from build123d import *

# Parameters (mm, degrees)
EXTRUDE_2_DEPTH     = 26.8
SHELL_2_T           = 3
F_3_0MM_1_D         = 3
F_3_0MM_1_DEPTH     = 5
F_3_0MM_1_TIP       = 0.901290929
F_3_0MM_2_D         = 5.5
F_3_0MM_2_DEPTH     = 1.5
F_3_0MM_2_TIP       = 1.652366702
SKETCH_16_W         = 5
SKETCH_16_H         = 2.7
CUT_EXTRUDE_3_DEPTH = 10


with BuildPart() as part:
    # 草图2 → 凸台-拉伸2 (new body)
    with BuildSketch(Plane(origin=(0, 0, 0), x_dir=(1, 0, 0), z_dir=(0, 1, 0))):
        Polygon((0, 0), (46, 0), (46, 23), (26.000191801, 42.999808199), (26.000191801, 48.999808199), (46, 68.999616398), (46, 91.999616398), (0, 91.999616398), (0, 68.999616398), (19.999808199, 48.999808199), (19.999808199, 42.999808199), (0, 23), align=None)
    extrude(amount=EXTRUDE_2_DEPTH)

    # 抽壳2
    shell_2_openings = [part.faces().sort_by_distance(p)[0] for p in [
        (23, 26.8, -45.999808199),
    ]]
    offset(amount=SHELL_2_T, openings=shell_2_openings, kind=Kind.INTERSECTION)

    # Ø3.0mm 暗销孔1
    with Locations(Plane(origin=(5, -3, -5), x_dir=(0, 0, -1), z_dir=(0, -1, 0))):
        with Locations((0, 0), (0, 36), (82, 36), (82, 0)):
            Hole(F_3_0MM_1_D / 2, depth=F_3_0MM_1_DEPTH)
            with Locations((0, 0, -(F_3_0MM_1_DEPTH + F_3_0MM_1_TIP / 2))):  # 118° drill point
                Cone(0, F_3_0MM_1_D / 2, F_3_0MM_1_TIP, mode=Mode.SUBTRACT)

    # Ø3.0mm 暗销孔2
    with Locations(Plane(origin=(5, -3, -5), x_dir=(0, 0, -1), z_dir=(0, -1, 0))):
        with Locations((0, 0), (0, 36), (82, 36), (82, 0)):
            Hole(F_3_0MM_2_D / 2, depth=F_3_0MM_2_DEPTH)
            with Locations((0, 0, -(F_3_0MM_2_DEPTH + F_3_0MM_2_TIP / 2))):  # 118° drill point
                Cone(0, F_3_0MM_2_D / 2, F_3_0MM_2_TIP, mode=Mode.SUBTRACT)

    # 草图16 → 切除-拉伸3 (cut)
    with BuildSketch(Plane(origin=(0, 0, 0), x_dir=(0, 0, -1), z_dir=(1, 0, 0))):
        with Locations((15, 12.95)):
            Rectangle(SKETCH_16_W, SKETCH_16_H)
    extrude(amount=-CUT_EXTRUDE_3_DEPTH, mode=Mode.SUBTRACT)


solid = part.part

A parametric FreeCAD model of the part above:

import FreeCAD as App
import Part
import Sketcher


def faces_at(feature, points):
    """Names of the faces that lie closest to the given points."""
    faces = feature.Shape.Faces
    near = lambda p: min(range(len(faces)), key=lambda i: faces[i].distToShape(Part.Vertex(*p))[0])
    return sorted({f"Face{near(p) + 1}" for p in points})

doc = App.newDocument("Part")
body = doc.addObject("PartDesign::Body", "Body")

sketch1 = doc.addObject("Sketcher::SketchObject", "Sketch")
body.addObject(sketch1)
sketch1.AttachmentSupport = (doc.XZ_Plane, [""])
sketch1.MapMode = "FlatFace"
sketch1.addGeometry([
    Part.LineSegment(App.Vector(0, 0, 0), App.Vector(46, 0, 0)),
    Part.LineSegment(App.Vector(46, 0, 0), App.Vector(46, -23, 0)),
    Part.LineSegment(App.Vector(46, -23, 0), App.Vector(26, -43, 0)),
    Part.LineSegment(App.Vector(26, -43, 0), App.Vector(26, -49, 0)),
    Part.LineSegment(App.Vector(26, -49, 0), App.Vector(46, -69, 0)),
    Part.LineSegment(App.Vector(46, -69, 0), App.Vector(46, -92, 0)),
    Part.LineSegment(App.Vector(46, -92, 0), App.Vector(0, -92, 0)),
    Part.LineSegment(App.Vector(0, -92, 0), App.Vector(0, -69, 0)),
    Part.LineSegment(App.Vector(0, -69, 0), App.Vector(20, -49, 0)),
    Part.LineSegment(App.Vector(20, -49, 0), App.Vector(20, -43, 0)),
    Part.LineSegment(App.Vector(20, -43, 0), App.Vector(0, -23, 0)),
    Part.LineSegment(App.Vector(0, -23, 0), App.Vector(0, 0, 0)),
], False)
sketch1.addConstraint([
    Sketcher.Constraint("Coincident", 0, 2, 1, 1),
    Sketcher.Constraint("Coincident", 1, 2, 2, 1),
    Sketcher.Constraint("Coincident", 2, 2, 3, 1),
    Sketcher.Constraint("Coincident", 3, 2, 4, 1),
    Sketcher.Constraint("Coincident", 4, 2, 5, 1),
    Sketcher.Constraint("Coincident", 5, 2, 6, 1),
    Sketcher.Constraint("Coincident", 6, 2, 7, 1),
    Sketcher.Constraint("Coincident", 7, 2, 8, 1),
    Sketcher.Constraint("Coincident", 8, 2, 9, 1),
    Sketcher.Constraint("Coincident", 9, 2, 10, 1),
    Sketcher.Constraint("Coincident", 10, 2, 11, 1),
    Sketcher.Constraint("Coincident", 11, 2, 0, 1),
    Sketcher.Constraint("Horizontal", 0),
    Sketcher.Constraint("Vertical", 1),
    Sketcher.Constraint("Vertical", 3),
    Sketcher.Constraint("Vertical", 5),
    Sketcher.Constraint("Horizontal", 6),
    Sketcher.Constraint("Vertical", 7),
    Sketcher.Constraint("Vertical", 9),
    Sketcher.Constraint("Vertical", 11),
    Sketcher.Constraint("Coincident", 11, 2, -1, 1),
    Sketcher.Constraint("PointOnObject", 6, 2, -2),
    Sketcher.Constraint("Perpendicular", 2, 4),
    Sketcher.Constraint("Perpendicular", 4, 8),
    Sketcher.Constraint("Perpendicular", 8, 10),
    Sketcher.Constraint("Horizontal", 4, 2, 7, 2),
    Sketcher.Constraint("Horizontal", 3, 2, 8, 2),
    Sketcher.Constraint("Horizontal", 2, 2, 9, 2),
    Sketcher.Constraint("Horizontal", 1, 2, 10, 2),
    Sketcher.Constraint("Vertical", 1, 2, 4, 2),
    Sketcher.Constraint("Equal", 1, 5),
    Sketcher.Constraint("DistanceX", 0, 1, 0, 2, 46.0),
    Sketcher.Constraint("DistanceY", 1, 2, 1, 1, 23.0),
    Sketcher.Constraint("DistanceY", 3, 2, 3, 1, 6.0),
    Sketcher.Constraint("Distance", 2, 28.284),
])
pad1 = doc.addObject("PartDesign::Pad", "Pad")
body.addObject(pad1)
pad1.Profile = sketch1
pad1.Length = 26.8
pad1.Reversed = True
doc.recompute()

thickness = doc.addObject("PartDesign::Thickness", "Thickness")
body.addObject(thickness)
thickness.Base = (pad1, faces_at(pad1, [(23, 26.8, -46)]))
thickness.Value = 3
thickness.Reversed = False
thickness.Join = "Intersection"

sketch2 = doc.addObject("Sketcher::SketchObject", "Sketch001")
body.addObject(sketch2)
sketch2.AttachmentSupport = (doc.XZ_Plane, [""])
sketch2.MapMode = "FlatFace"
sketch2.AttachmentOffset = App.Placement(App.Vector(0, 0, 3), App.Rotation())
sketch2.addGeometry([
    Part.Circle(App.Vector(5, -5, 0), App.Vector(0, 0, 1), 1.5),
    Part.Circle(App.Vector(41, -5, 0), App.Vector(0, 0, 1), 1.5),
    Part.Circle(App.Vector(41, -87, 0), App.Vector(0, 0, 1), 1.5),
    Part.Circle(App.Vector(5, -87, 0), App.Vector(0, 0, 1), 1.5),
], False)
sketch2.addConstraint([
    Sketcher.Constraint("Equal", 0, 1),
    Sketcher.Constraint("Equal", 1, 2),
    Sketcher.Constraint("Equal", 2, 3),
    Sketcher.Constraint("Horizontal", 0, 3, 1, 3),
    Sketcher.Constraint("Horizontal", 2, 3, 3, 3),
    Sketcher.Constraint("Vertical", 1, 3, 2, 3),
    Sketcher.Constraint("Vertical", 0, 3, 3, 3),
    Sketcher.Constraint("Diameter", 0, 3.0),
    Sketcher.Constraint("DistanceX", -1, 1, 0, 3, 5.0),
    Sketcher.Constraint("DistanceY", 0, 3, -1, 1, 5.0),
    Sketcher.Constraint("DistanceX", -1, 1, 1, 3, 41.0),
    Sketcher.Constraint("DistanceY", 2, 3, -1, 1, 87.0),
])
doc.recompute()
hole = doc.addObject("PartDesign::Hole", "Hole")
body.addObject(hole)
hole.Profile = sketch2
hole.ThreadType = "None"
hole.Diameter = 3
hole.DepthType = "Dimension"
hole.Depth = 5
hole.DrillPoint = "Angled"
hole.DrillPointAngle = 118

sketch3 = doc.addObject("Sketcher::SketchObject", "Sketch002")
body.addObject(sketch3)
sketch3.AttachmentSupport = (doc.XZ_Plane, [""])
sketch3.MapMode = "FlatFace"
sketch3.AttachmentOffset = App.Placement(App.Vector(0, 0, 3), App.Rotation())
sketch3.addGeometry([
    Part.Circle(App.Vector(5, -5, 0), App.Vector(0, 0, 1), 2.8),
    Part.Circle(App.Vector(41, -5, 0), App.Vector(0, 0, 1), 2.8),
    Part.Circle(App.Vector(41, -87, 0), App.Vector(0, 0, 1), 2.8),
    Part.Circle(App.Vector(5, -87, 0), App.Vector(0, 0, 1), 2.8),
], False)
sketch3.addConstraint([
    Sketcher.Constraint("Equal", 0, 1),
    Sketcher.Constraint("Equal", 1, 2),
    Sketcher.Constraint("Equal", 2, 3),
    Sketcher.Constraint("Horizontal", 0, 3, 1, 3),
    Sketcher.Constraint("Horizontal", 2, 3, 3, 3),
    Sketcher.Constraint("Vertical", 1, 3, 2, 3),
    Sketcher.Constraint("Vertical", 0, 3, 3, 3),
    Sketcher.Constraint("Diameter", 0, 5.5),
    Sketcher.Constraint("DistanceX", -1, 1, 0, 3, 5.0),
    Sketcher.Constraint("DistanceY", 0, 3, -1, 1, 5.0),
    Sketcher.Constraint("DistanceX", -1, 1, 1, 3, 41.0),
    Sketcher.Constraint("DistanceY", 2, 3, -1, 1, 87.0),
])
doc.recompute()
hole2 = doc.addObject("PartDesign::Hole", "Hole001")
body.addObject(hole2)
hole2.Profile = sketch3
hole2.ThreadType = "None"
hole2.Diameter = 5.5
hole2.DepthType = "Dimension"
hole2.Depth = 1.5
hole2.DrillPoint = "Angled"
hole2.DrillPointAngle = 118

sketch4 = doc.addObject("Sketcher::SketchObject", "Sketch003")
body.addObject(sketch4)
sketch4.AttachmentSupport = (doc.YZ_Plane, [""])
sketch4.MapMode = "FlatFace"
sketch4.addGeometry([
    Part.LineSegment(App.Vector(14.3, -12.5, 0), App.Vector(11.6, -12.5, 0)),
    Part.LineSegment(App.Vector(11.6, -12.5, 0), App.Vector(11.6, -17.5, 0)),
    Part.LineSegment(App.Vector(11.6, -17.5, 0), App.Vector(14.3, -17.5, 0)),
    Part.LineSegment(App.Vector(14.3, -17.5, 0), App.Vector(14.3, -12.5, 0)),
], False)
sketch4.addConstraint([
    Sketcher.Constraint("Coincident", 0, 2, 1, 1),
    Sketcher.Constraint("Coincident", 1, 2, 2, 1),
    Sketcher.Constraint("Coincident", 2, 2, 3, 1),
    Sketcher.Constraint("Coincident", 3, 2, 0, 1),
    Sketcher.Constraint("Horizontal", 0),
    Sketcher.Constraint("Vertical", 1),
    Sketcher.Constraint("Horizontal", 2),
    Sketcher.Constraint("Vertical", 3),
    Sketcher.Constraint("DistanceY", 1, 2, 1, 1, 5.0),
    Sketcher.Constraint("DistanceX", 0, 2, 0, 1, 2.7),
    Sketcher.Constraint("DistanceX", -1, 1, 0, 2, 11.6),
    Sketcher.Constraint("DistanceY", 0, 2, -1, 1, 12.5),
])
pocket1 = doc.addObject("PartDesign::Pocket", "Pocket")
body.addObject(pocket1)
pocket1.Profile = sketch4
pocket1.Length = 10

doc.recompute()
